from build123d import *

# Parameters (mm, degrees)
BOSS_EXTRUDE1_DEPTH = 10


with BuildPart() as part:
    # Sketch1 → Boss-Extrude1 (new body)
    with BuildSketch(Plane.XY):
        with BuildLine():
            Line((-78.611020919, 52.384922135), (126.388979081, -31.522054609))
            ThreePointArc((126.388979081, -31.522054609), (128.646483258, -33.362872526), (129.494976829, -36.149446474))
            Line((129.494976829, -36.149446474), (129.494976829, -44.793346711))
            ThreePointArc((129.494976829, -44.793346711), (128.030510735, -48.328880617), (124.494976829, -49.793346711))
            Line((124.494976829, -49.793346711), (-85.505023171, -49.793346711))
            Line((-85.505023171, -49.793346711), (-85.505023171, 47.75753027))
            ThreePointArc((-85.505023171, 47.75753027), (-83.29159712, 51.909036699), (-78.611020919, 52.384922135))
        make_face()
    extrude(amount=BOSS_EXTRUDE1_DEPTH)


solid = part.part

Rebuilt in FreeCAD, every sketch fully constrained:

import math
import FreeCAD as App
import Part
import Sketcher

V = App.Vector
Q = App.Units.Quantity

doc = App.newDocument("Part")
body = doc.addObject("PartDesign::Body", "Body")

# Sketch on XY plane
sketch1 = body.newObject("Sketcher::SketchObject", "Sketch")
sketch1.AttachmentSupport = (doc.getObject("XY_Plane"), [""])
sketch1.MapMode = "FlatFace"
sketch1.addGeometry([
    Part.LineSegment(V(126, -32, 0), V(-79, 52, 0)),  # 0
    Part.ArcOfCircle(Part.Circle(V(-81, 48, 0), V(0, 0, 1), 5), math.radians(68), math.radians(180)),  # 1
    Part.LineSegment(V(-86, 48, 0), V(-86, -50, 0)),  # 2
    Part.LineSegment(V(-86, -50, 0), V(124, -50, 0)),  # 3
    Part.ArcOfCircle(Part.Circle(V(124, -45, 0), V(0, 0, 1), 5), math.radians(-90), math.radians(0)),  # 4
    Part.LineSegment(V(129, -45, 0), V(129, -36, 0)),  # 5
    Part.ArcOfCircle(Part.Circle(V(124, -36, 0), V(0, 0, 1), 5), math.radians(0), math.radians(68)),  # 6
], False)
sketch1.addConstraint([
    Sketcher.Constraint("Tangent", 0, 2, 1, 1),
    Sketcher.Constraint("Tangent", 1, 2, 2, 1),
    Sketcher.Constraint("Coincident", 2, 2, 3, 1),
    Sketcher.Constraint("Tangent", 3, 2, 4, 1),
    Sketcher.Constraint("Tangent", 4, 2, 5, 1),
    Sketcher.Constraint("Tangent", 5, 2, 6, 1),
    Sketcher.Constraint("Tangent", 6, 2, 0, 1),
    Sketcher.Constraint("Vertical", 2),
    Sketcher.Constraint("Horizontal", 3),
    Sketcher.Constraint("Vertical", 5),
    Sketcher.Constraint("Equal", 1, 4),
    Sketcher.Constraint("Equal", 4, 6),
    Sketcher.Constraint("Radius", 1, Q("5 mm")),
    Sketcher.Constraint("DistanceX", 3, 1, 3, 2, Q("210 mm")),
    Sketcher.Constraint("DistanceY", 5, 1, 5, 2, Q("8.6439 mm")),
    Sketcher.Constraint("DistanceY", 2, 2, 2, 1, Q("97.550877 mm")),
    Sketcher.Constraint("DistanceY", -1, 1, 1, 3, Q("47.75753 mm")),
    Sketcher.Constraint("DistanceX", 0, 2, -1, 1, Q("78.611021 mm")),
])
pad1 = body.newObject("PartDesign::Pad", "Pad")
pad1.Profile = sketch1
pad1.Length = 10

doc.recompute()
